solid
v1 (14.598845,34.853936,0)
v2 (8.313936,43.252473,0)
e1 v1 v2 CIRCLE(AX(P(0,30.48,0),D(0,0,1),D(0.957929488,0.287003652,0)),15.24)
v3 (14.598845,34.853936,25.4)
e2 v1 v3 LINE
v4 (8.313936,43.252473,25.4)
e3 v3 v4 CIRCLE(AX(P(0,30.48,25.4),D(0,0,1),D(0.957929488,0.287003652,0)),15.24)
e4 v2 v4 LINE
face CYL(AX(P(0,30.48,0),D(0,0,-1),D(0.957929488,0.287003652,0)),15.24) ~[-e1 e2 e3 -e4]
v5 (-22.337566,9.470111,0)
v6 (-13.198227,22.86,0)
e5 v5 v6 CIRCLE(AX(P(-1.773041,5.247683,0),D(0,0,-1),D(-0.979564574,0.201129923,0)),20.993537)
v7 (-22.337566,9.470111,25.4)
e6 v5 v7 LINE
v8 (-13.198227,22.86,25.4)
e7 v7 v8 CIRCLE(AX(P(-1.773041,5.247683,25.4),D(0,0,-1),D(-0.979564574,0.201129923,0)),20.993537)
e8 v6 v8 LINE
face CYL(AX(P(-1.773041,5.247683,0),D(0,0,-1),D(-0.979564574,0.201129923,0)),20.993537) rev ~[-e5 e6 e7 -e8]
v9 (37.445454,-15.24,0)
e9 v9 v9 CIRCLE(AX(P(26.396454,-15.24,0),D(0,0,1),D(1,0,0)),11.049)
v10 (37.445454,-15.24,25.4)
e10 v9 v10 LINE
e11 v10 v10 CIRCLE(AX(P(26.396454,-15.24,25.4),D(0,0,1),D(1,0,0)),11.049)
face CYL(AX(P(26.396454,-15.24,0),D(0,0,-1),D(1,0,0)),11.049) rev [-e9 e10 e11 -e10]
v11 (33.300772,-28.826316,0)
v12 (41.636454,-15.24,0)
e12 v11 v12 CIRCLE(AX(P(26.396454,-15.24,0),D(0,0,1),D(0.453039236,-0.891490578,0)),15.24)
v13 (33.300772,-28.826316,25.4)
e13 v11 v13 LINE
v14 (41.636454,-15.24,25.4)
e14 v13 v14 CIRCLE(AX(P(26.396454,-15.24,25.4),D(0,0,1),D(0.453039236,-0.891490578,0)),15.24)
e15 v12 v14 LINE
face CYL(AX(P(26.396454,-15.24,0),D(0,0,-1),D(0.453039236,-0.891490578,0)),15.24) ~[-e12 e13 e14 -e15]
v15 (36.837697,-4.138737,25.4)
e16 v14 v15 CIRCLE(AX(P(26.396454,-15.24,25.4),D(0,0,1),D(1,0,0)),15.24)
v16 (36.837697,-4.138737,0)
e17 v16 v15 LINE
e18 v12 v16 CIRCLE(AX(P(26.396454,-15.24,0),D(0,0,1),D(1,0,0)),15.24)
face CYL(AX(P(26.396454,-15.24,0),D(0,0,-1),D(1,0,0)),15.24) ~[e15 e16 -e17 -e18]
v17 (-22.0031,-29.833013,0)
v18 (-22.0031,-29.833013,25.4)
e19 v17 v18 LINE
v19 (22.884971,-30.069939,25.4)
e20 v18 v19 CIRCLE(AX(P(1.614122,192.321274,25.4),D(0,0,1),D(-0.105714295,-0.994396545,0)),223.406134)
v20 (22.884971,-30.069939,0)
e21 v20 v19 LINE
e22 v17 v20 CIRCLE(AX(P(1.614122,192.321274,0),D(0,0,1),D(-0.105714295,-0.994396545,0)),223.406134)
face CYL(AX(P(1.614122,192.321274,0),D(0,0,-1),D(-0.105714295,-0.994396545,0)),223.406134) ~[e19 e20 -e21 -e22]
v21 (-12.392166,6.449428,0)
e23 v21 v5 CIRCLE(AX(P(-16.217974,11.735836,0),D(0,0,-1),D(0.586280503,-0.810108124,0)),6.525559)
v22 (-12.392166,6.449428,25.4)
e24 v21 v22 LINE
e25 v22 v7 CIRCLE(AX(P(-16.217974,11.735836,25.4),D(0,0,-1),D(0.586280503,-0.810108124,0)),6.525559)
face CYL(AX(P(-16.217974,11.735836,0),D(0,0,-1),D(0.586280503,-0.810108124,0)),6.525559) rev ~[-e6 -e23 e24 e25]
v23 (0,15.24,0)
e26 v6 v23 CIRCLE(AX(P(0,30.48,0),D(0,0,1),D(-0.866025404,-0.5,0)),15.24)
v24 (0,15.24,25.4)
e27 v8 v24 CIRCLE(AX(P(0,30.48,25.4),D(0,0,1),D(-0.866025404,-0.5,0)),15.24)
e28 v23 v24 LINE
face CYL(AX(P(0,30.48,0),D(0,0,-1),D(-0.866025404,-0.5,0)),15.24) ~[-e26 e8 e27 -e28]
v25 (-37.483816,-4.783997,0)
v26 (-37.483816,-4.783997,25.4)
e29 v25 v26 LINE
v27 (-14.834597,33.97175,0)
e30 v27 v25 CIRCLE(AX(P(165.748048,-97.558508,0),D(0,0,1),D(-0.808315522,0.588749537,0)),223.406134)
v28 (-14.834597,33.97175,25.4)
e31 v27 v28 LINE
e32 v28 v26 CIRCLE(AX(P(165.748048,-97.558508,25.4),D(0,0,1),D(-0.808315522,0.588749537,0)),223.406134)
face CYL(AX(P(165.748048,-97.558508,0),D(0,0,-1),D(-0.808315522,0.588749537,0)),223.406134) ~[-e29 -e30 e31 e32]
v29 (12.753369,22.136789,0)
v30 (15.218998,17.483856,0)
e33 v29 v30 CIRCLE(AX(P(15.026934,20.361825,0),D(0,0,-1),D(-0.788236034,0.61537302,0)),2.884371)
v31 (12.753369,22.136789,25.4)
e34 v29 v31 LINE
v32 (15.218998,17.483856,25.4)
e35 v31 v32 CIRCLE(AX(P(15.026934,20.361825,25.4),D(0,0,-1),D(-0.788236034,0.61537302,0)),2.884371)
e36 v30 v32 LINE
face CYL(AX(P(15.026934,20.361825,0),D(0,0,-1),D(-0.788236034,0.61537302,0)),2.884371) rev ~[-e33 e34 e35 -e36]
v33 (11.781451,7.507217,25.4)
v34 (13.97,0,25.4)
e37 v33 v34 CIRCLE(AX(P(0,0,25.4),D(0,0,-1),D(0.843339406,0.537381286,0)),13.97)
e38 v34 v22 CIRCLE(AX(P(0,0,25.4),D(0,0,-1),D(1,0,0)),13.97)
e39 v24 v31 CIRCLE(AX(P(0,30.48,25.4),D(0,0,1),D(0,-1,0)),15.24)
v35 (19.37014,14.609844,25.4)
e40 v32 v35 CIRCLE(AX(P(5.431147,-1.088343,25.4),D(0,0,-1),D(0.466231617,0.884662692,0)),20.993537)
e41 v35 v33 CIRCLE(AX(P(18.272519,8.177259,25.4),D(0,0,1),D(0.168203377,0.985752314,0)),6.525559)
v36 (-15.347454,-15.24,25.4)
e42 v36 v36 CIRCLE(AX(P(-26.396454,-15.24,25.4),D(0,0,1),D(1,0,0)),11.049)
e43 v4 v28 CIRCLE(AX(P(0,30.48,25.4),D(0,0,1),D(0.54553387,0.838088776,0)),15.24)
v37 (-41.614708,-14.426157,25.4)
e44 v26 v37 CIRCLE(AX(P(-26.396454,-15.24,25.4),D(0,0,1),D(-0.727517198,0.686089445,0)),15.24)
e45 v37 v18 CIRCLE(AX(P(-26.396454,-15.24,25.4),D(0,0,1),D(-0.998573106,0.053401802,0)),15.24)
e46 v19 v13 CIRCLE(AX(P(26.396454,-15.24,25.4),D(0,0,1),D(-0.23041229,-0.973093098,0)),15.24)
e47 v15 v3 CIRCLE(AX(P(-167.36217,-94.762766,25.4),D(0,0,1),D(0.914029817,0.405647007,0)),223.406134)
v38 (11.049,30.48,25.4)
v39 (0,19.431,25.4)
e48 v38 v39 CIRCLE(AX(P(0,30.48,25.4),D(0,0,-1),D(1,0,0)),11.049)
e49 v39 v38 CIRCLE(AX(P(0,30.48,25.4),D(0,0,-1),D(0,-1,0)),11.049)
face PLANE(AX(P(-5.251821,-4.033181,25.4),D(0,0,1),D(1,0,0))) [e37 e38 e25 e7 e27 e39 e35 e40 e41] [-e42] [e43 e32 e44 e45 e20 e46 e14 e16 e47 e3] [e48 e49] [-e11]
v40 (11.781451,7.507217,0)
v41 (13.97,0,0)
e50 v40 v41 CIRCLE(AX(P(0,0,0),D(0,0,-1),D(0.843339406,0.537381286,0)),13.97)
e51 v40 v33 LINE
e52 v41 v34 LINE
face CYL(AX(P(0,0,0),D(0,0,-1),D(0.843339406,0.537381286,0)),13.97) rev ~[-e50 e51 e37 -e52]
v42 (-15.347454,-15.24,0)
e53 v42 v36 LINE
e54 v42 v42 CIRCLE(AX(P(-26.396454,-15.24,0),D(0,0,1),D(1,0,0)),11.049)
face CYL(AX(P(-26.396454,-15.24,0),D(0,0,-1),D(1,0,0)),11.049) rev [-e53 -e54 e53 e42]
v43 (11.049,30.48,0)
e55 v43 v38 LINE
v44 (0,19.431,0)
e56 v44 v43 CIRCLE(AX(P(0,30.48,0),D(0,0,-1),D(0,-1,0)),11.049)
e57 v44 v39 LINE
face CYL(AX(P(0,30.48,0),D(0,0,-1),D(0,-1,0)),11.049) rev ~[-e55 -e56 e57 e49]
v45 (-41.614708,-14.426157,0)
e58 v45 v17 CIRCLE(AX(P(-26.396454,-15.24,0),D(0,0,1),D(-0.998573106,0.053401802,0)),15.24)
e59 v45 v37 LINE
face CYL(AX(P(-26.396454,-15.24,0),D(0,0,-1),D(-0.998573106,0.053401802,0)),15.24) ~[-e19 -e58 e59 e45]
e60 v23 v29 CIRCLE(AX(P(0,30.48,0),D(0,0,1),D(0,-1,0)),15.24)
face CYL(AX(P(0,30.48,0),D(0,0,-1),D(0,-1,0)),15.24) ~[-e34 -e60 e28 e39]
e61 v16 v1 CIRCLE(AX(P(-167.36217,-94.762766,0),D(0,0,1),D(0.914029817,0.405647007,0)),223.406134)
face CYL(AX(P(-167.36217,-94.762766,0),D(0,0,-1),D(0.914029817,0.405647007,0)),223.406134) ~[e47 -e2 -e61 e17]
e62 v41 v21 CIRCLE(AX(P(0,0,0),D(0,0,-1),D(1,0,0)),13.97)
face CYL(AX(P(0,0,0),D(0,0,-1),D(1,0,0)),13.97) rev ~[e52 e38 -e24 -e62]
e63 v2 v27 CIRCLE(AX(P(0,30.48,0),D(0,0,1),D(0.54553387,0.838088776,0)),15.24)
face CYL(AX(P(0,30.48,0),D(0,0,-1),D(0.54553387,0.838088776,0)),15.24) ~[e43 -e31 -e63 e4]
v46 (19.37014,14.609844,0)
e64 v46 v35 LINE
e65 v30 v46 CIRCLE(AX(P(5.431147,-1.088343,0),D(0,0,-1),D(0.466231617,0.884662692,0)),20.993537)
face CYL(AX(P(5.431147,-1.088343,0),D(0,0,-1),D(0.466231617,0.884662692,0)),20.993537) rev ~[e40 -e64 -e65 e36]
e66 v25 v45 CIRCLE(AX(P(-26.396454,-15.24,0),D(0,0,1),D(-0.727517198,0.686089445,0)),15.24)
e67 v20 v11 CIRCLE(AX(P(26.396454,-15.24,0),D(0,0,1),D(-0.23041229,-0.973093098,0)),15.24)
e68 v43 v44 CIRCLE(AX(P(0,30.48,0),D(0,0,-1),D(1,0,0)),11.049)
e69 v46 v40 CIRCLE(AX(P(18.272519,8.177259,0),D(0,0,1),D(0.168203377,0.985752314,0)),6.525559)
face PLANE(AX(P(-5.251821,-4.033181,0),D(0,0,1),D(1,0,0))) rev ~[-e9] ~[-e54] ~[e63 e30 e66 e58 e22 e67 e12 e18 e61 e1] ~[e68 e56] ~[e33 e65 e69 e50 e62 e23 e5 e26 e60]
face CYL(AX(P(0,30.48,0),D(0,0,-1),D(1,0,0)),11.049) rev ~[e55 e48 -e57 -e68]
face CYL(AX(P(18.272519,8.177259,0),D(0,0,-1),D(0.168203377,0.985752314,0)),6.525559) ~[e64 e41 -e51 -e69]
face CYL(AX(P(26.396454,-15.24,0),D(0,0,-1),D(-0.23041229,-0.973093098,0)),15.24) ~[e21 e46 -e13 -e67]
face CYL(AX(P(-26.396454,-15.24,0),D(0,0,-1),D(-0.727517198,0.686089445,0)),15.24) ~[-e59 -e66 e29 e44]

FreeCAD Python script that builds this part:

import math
import FreeCAD as App
import Part
import Sketcher
Q = App.Units.Quantity

doc = App.newDocument("Part")
body = doc.addObject("PartDesign::Body", "Body")

sketch1 = body.newObject("Sketcher::SketchObject", "Sketch")
sketch1.AttachmentSupport = (doc.getObject("XY_Plane"), [""])
sketch1.MapMode = "FlatFace"
sketch1.addGeometry([
    Part.ArcOfCircle(Part.Circle(App.Vector(165.7, -97.6, 0), App.Vector(0, 0, 1), 223.4), math.radians(143.93), math.radians(155.46)),
    Part.ArcOfCircle(Part.Circle(App.Vector(-26.4, -15.2, 0), App.Vector(0, 0, 1), 15.2), math.radians(137), math.radians(177)),
    Part.ArcOfCircle(Part.Circle(App.Vector(-26.4, -15.2, 0), App.Vector(0, 0, 1), 15.2), math.radians(177), math.radians(287)),
    Part.ArcOfCircle(Part.Circle(App.Vector(1.6, 192.3, 0), App.Vector(0, 0, 1), 223.4), math.radians(-96.07), math.radians(-84.54)),
    Part.ArcOfCircle(Part.Circle(App.Vector(26.4, -15.2, 0), App.Vector(0, 0, 1), 15.2), math.radians(-103), math.radians(-63)),
    Part.ArcOfCircle(Part.Circle(App.Vector(26.4, -15.2, 0), App.Vector(0, 0, 1), 15.2), math.radians(-63), math.radians(0)),
    Part.ArcOfCircle(Part.Circle(App.Vector(26.4, -15.2, 0), App.Vector(0, 0, 1), 15.2), math.radians(0), math.radians(47)),
    Part.ArcOfCircle(Part.Circle(App.Vector(-167.4, -94.8, 0), App.Vector(0, 0, 1), 223.4), math.radians(23.93), math.radians(35.46)),
    Part.ArcOfCircle(Part.Circle(App.Vector(0, 30.5, 0), App.Vector(0, 0, 1), 15.2), math.radians(17), math.radians(57)),
    Part.ArcOfCircle(Part.Circle(App.Vector(0, 30.5, 0), App.Vector(0, 0, 1), 15.2), math.radians(57), math.radians(167)),
    Part.Circle(App.Vector(-26.4, -15.2, 0), App.Vector(0, 0, 1), 11),
    Part.ArcOfCircle(Part.Circle(App.Vector(0, 0, 0), App.Vector(0, 0, 1), 14), math.radians(0), math.radians(33)),
    Part.ArcOfCircle(Part.Circle(App.Vector(0, 0, 0), App.Vector(0, 0, 1), 14), math.radians(153), math.radians(360)),
    Part.ArcOfCircle(Part.Circle(App.Vector(-16.2, 11.7, 0), App.Vector(0, 0, 1), 6.5), math.radians(-160), math.radians(-54)),
    Part.ArcOfCircle(Part.Circle(App.Vector(-1.8, 5.2, 0), App.Vector(0, 0, 1), 21), math.radians(123), math.radians(168)),
    Part.ArcOfCircle(Part.Circle(App.Vector(0, 30.5, 0), App.Vector(0, 0, 1), 15.2), math.radians(-150), math.radians(-90)),
    Part.ArcOfCircle(Part.Circle(App.Vector(0, 30.5, 0), App.Vector(0, 0, 1), 15.2), math.radians(-90), math.radians(-33)),
    Part.ArcOfCircle(Part.Circle(App.Vector(15, 20.4, 0), App.Vector(0, 0, 1), 2.9), math.radians(-86), math.radians(142)),
    Part.ArcOfCircle(Part.Circle(App.Vector(5.4, -1.1, 0), App.Vector(0, 0, 1), 21), math.radians(48.4), math.radians(62.21)),
    Part.ArcOfCircle(Part.Circle(App.Vector(18.3, 8.2, 0), App.Vector(0, 0, 1), 6.5), math.radians(80), math.radians(186)),
    Part.Circle(App.Vector(26.4, -15.2, 0), App.Vector(0, 0, 1), 11),
    Part.ArcOfCircle(Part.Circle(App.Vector(0, 30.5, 0), App.Vector(0, 0, 1), 11), math.radians(0), math.radians(270)),
    Part.ArcOfCircle(Part.Circle(App.Vector(0, 30.5, 0), App.Vector(0, 0, 1), 11), math.radians(-90), math.radians(0)),
], False)
sketch1.addConstraint([
    Sketcher.Constraint("Coincident", 0, 2, 1, 1),
    Sketcher.Constraint("Tangent", 1, 2, 2, 1),
    Sketcher.Constraint("Coincident", 2, 2, 3, 1),
    Sketcher.Constraint("Coincident", 3, 2, 4, 1),
    Sketcher.Constraint("Tangent", 4, 2, 5, 1),
    Sketcher.Constraint("Tangent", 5, 2, 6, 1),
    Sketcher.Constraint("Coincident", 6, 2, 7, 1),
    Sketcher.Constraint("Coincident", 7, 2, 8, 1),
    Sketcher.Constraint("Tangent", 8, 2, 9, 1),
    Sketcher.Constraint("Coincident", 9, 2, 0, 1),
    Sketcher.Constraint("Tangent", 11, 1, 12, 2),
    Sketcher.Constraint("Coincident", 12, 1, 13, 2),
    Sketcher.Constraint("Coincident", 13, 1, 14, 2),
    Sketcher.Constraint("Coincident", 14, 1, 15, 1),
    Sketcher.Constraint("Tangent", 15, 2, 16, 1),
    Sketcher.Constraint("Coincident", 16, 2, 17, 2),
    Sketcher.Constraint("Coincident", 17, 1, 18, 2),
    Sketcher.Constraint("Coincident", 18, 1, 19, 1),
    Sketcher.Constraint("Coincident", 19, 2, 11, 2),
    Sketcher.Constraint("Tangent", 21, 1, 22, 2),
    Sketcher.Constraint("Coincident", 22, 1, 21, 2),
    Sketcher.Constraint("Coincident", 11, 3, -1, 1),
    Sketcher.Constraint("Coincident", 6, 3, 4, 3),
    Sketcher.Constraint("Coincident", 10, 3, 1, 3),
    Sketcher.Constraint("Coincident", 15, 3, 8, 3),
    Sketcher.Constraint("Coincident", 20, 3, 4, 3),
    Sketcher.Constraint("Coincident", 21, 3, 8, 3),
    Sketcher.Constraint("Equal", 1, 2),
    Sketcher.Constraint("Equal", 0, 3),
    Sketcher.Constraint("Equal", 2, 4),
    Sketcher.Constraint("Equal", 3, 7),
    Sketcher.Constraint("Equal", 6, 8),
    Sketcher.Constraint("Equal", 8, 9),
    Sketcher.Constraint("Equal", 11, 12),
    Sketcher.Constraint("Equal", 9, 15),
    Sketcher.Constraint("Equal", 15, 16),
    Sketcher.Constraint("Equal", 14, 18),
    Sketcher.Constraint("Equal", 13, 19),
    Sketcher.Constraint("Equal", 10, 20),
    Sketcher.Constraint("Equal", 20, 21),
    Sketcher.Constraint("Symmetric", 1, 3, 4, 3, -2),
    Sketcher.Constraint("PointOnObject", 8, 3, -2),
    Sketcher.Constraint("PointOnObject", 11, 1, -1),
    Sketcher.Constraint("PointOnObject", 15, 2, -2),
    Sketcher.Constraint("PointOnObject", 22, 1, -2),
    Sketcher.Constraint("Horizontal", 20, 3, 5, 2),
    Sketcher.Constraint("Horizontal", 22, 3, 21, 1),
    Sketcher.Constraint("Radius", 1, Q("0.6 in")),
    Sketcher.Constraint("Diameter", 10, Q("0.87 in")),
    Sketcher.Constraint("Radius", 11, Q("0.55 in")),
    Sketcher.Constraint("DistanceY", 1, 3, -1, 1, Q("0.6 in")),
    Sketcher.Constraint("DistanceY", -1, 1, 8, 3, Q("1.2 in")),
    Sketcher.Constraint("DistanceY", -1, 1, 14, 1, Q("0.9 in")),
    Sketcher.Constraint("Radius", 13, Q("6.525559 mm")),
    Sketcher.Constraint("Radius", 17, Q("2.884371 mm")),
    Sketcher.Constraint("Radius", 0, Q("223.406134 mm")),
    Sketcher.Constraint("Radius", 14, Q("20.993537 mm")),
    Sketcher.Constraint("DistanceX", 2, 2, -1, 1, Q("22.0031 mm")),
    Sketcher.Constraint("DistanceX", 3, 2, 4, 2, Q("10.415801 mm")),
    Sketcher.Constraint("DistanceX", 13, 1, 12, 1, Q("9.9454 mm")),
    Sketcher.Constraint("DistanceX", -1, 1, 0, 3, Q("165.748048 mm")),
    Sketcher.Constraint("DistanceX", -1, 1, 3, 3, Q("1.614122 mm")),
    Sketcher.Constraint("DistanceX", 7, 3, -1, 1, Q("167.36217 mm")),
    Sketcher.Constraint("DistanceX", 14, 3, -1, 1, Q("1.773041 mm")),
    Sketcher.Constraint("DistanceX", -1, 1, 19, 3, Q("18.272519 mm")),
    Sketcher.Constraint("DistanceY", -1, 1, 19, 3, Q("8.177259 mm")),
    Sketcher.Constraint("DistanceX", 1, 2, -1, 1, Q("41.614708 mm")),
    Sketcher.Constraint("DistanceY", 3, 2, -1, 1, Q("30.069939 mm")),
    Sketcher.Constraint("DistanceY", -1, 1, 9, 2, Q("33.97175 mm")),
    Sketcher.Constraint("DistanceY", -1, 1, 12, 1, Q("6.449428 mm")),
    Sketcher.Constraint("DistanceX", -1, 1, 16, 2, Q("12.753369 mm")),
    Sketcher.Constraint("DistanceX", -1, 1, 18, 1, Q("19.37014 mm")),
    Sketcher.Constraint("DistanceY", 14, 3, 17, 3, Q("15.114142 mm")),
    Sketcher.Constraint("DistanceY", 18, 3, 17, 3, Q("21.450168 mm")),
    Sketcher.Constraint("DistanceX", 7, 2, 17, 3, Q("0.428089 mm")),
    Sketcher.Constraint("DistanceX", 8, 2, 7, 2, Q("6.284909 mm")),
])
pad1 = body.newObject("PartDesign::Pad", "Pad")
pad1.Profile = sketch1
pad1.Length = Q("1 in")

sketch2 = body.newObject("Sketcher::SketchObject", "Sketch001")
sketch2.AttachmentSupport = (doc.getObject("XY_Plane"), [""])
sketch2.MapMode = "FlatFace"
sketch2.addGeometry([
    Part.ArcOfCircle(Part.Circle(App.Vector(165.7, -97.6, 0), App.Vector(0, 0, 1), 223.4), math.radians(143.93), math.radians(155.46)),
    Part.ArcOfCircle(Part.Circle(App.Vector(-26.4, -15.2, 0), App.Vector(0, 0, 1), 15.2), math.radians(137), math.radians(177)),
    Part.ArcOfCircle(Part.Circle(App.Vector(-26.4, -15.2, 0), App.Vector(0, 0, 1), 15.2), math.radians(177), math.radians(287)),
    Part.ArcOfCircle(Part.Circle(App.Vector(1.6, 192.3, 0), App.Vector(0, 0, 1), 223.4), math.radians(-96.07), math.radians(-84.54)),
    Part.ArcOfCircle(Part.Circle(App.Vector(26.4, -15.2, 0), App.Vector(0, 0, 1), 15.2), math.radians(-103), math.radians(-63)),
    Part.ArcOfCircle(Part.Circle(App.Vector(26.4, -15.2, 0), App.Vector(0, 0, 1), 15.2), math.radians(-63), math.radians(0)),
    Part.ArcOfCircle(Part.Circle(App.Vector(26.4, -15.2, 0), App.Vector(0, 0, 1), 15.2), math.radians(0), math.radians(47)),
    Part.ArcOfCircle(Part.Circle(App.Vector(-167.4, -94.8, 0), App.Vector(0, 0, 1), 223.4), math.radians(23.93), math.radians(35.46)),
    Part.ArcOfCircle(Part.Circle(App.Vector(0, 30.5, 0), App.Vector(0, 0, 1), 15.2), math.radians(17), math.radians(57)),
    Part.ArcOfCircle(Part.Circle(App.Vector(0, 30.5, 0), App.Vector(0, 0, 1), 15.2), math.radians(57), math.radians(167)),
    Part.Circle(App.Vector(-26.4, -15.2, 0), App.Vector(0, 0, 1), 11),
    Part.ArcOfCircle(Part.Circle(App.Vector(0, 0, 0), App.Vector(0, 0, 1), 14), math.radians(0), math.radians(33)),
    Part.ArcOfCircle(Part.Circle(App.Vector(0, 0, 0), App.Vector(0, 0, 1), 14), math.radians(153), math.radians(360)),
    Part.ArcOfCircle(Part.Circle(App.Vector(-16.2, 11.7, 0), App.Vector(0, 0, 1), 6.5), math.radians(-160), math.radians(-54)),
    Part.ArcOfCircle(Part.Circle(App.Vector(-1.8, 5.2, 0), App.Vector(0, 0, 1), 21), math.radians(123), math.radians(168)),
    Part.ArcOfCircle(Part.Circle(App.Vector(0, 30.5, 0), App.Vector(0, 0, 1), 15.2), math.radians(-150), math.radians(-90)),
    Part.ArcOfCircle(Part.Circle(App.Vector(0, 30.5, 0), App.Vector(0, 0, 1), 15.2), math.radians(-90), math.radians(-33)),
    Part.ArcOfCircle(Part.Circle(App.Vector(15, 20.4, 0), App.Vector(0, 0, 1), 2.9), math.radians(-86), math.radians(142)),
    Part.ArcOfCircle(Part.Circle(App.Vector(5.4, -1.1, 0), App.Vector(0, 0, 1), 21), math.radians(48.4), math.radians(62.21)),
    Part.ArcOfCircle(Part.Circle(App.Vector(18.3, 8.2, 0), App.Vector(0, 0, 1), 6.5), math.radians(80), math.radians(186)),
    Part.Circle(App.Vector(26.4, -15.2, 0), App.Vector(0, 0, 1), 11),
    Part.ArcOfCircle(Part.Circle(App.Vector(0, 30.5, 0), App.Vector(0, 0, 1), 11), math.radians(0), math.radians(270)),
    Part.ArcOfCircle(Part.Circle(App.Vector(0, 30.5, 0), App.Vector(0, 0, 1), 11), math.radians(-90), math.radians(0)),
], False)
sketch2.addConstraint([
    Sketcher.Constraint("Coincident", 0, 2, 1, 1),
    Sketcher.Constraint("Tangent", 1, 2, 2, 1),
    Sketcher.Constraint("Coincident", 2, 2, 3, 1),
    Sketcher.Constraint("Coincident", 3, 2, 4, 1),
    Sketcher.Constraint("Tangent", 4, 2, 5, 1),
    Sketcher.Constraint("Tangent", 5, 2, 6, 1),
    Sketcher.Constraint("Coincident", 6, 2, 7, 1),
    Sketcher.Constraint("Coincident", 7, 2, 8, 1),
    Sketcher.Constraint("Tangent", 8, 2, 9, 1),
    Sketcher.Constraint("Coincident", 9, 2, 0, 1),
    Sketcher.Constraint("Tangent", 11, 1, 12, 2),
    Sketcher.Constraint("Coincident", 12, 1, 13, 2),
    Sketcher.Constraint("Coincident", 13, 1, 14, 2),
    Sketcher.Constraint("Coincident", 14, 1, 15, 1),
    Sketcher.Constraint("Tangent", 15, 2, 16, 1),
    Sketcher.Constraint("Coincident", 16, 2, 17, 2),
    Sketcher.Constraint("Coincident", 17, 1, 18, 2),
    Sketcher.Constraint("Coincident", 18, 1, 19, 1),
    Sketcher.Constraint("Coincident", 19, 2, 11, 2),
    Sketcher.Constraint("Tangent", 21, 1, 22, 2),
    Sketcher.Constraint("Coincident", 22, 1, 21, 2),
    Sketcher.Constraint("Coincident", 11, 3, -1, 1),
    Sketcher.Constraint("Coincident", 6, 3, 4, 3),
    Sketcher.Constraint("Coincident", 10, 3, 1, 3),
    Sketcher.Constraint("Coincident", 15, 3, 8, 3),
    Sketcher.Constraint("Coincident", 20, 3, 4, 3),
    Sketcher.Constraint("Coincident", 21, 3, 8, 3),
    Sketcher.Constraint("Equal", 1, 2),
    Sketcher.Constraint("Equal", 0, 3),
    Sketcher.Constraint("Equal", 2, 4),
    Sketcher.Constraint("Equal", 3, 7),
    Sketcher.Constraint("Equal", 6, 8),
    Sketcher.Constraint("Equal", 8, 9),
    Sketcher.Constraint("Equal", 11, 12),
    Sketcher.Constraint("Equal", 9, 15),
    Sketcher.Constraint("Equal", 15, 16),
    Sketcher.Constraint("Equal", 14, 18),
    Sketcher.Constraint("Equal", 13, 19),
    Sketcher.Constraint("Equal", 10, 20),
    Sketcher.Constraint("Equal", 20, 21),
    Sketcher.Constraint("Symmetric", 1, 3, 4, 3, -2),
    Sketcher.Constraint("PointOnObject", 8, 3, -2),
    Sketcher.Constraint("PointOnObject", 11, 1, -1),
    Sketcher.Constraint("PointOnObject", 15, 2, -2),
    Sketcher.Constraint("PointOnObject", 22, 1, -2),
    Sketcher.Constraint("Horizontal", 20, 3, 5, 2),
    Sketcher.Constraint("Horizontal", 22, 3, 21, 1),
    Sketcher.Constraint("Radius", 1, Q("0.6 in")),
    Sketcher.Constraint("Diameter", 10, Q("0.87 in")),
    Sketcher.Constraint("Radius", 11, Q("0.55 in")),
    Sketcher.Constraint("DistanceY", 1, 3, -1, 1, Q("0.6 in")),
    Sketcher.Constraint("DistanceY", -1, 1, 8, 3, Q("1.2 in")),
    Sketcher.Constraint("DistanceY", -1, 1, 14, 1, Q("0.9 in")),
    Sketcher.Constraint("Radius", 13, Q("6.525559 mm")),
    Sketcher.Constraint("Radius", 17, Q("2.884371 mm")),
    Sketcher.Constraint("Radius", 0, Q("223.406134 mm")),
    Sketcher.Constraint("Radius", 14, Q("20.993537 mm")),
    Sketcher.Constraint("DistanceX", 2, 2, -1, 1, Q("22.0031 mm")),
    Sketcher.Constraint("DistanceX", 3, 2, 4, 2, Q("10.415801 mm")),
    Sketcher.Constraint("DistanceX", 13, 1, 12, 1, Q("9.9454 mm")),
    Sketcher.Constraint("DistanceX", -1, 1, 0, 3, Q("165.748048 mm")),
    Sketcher.Constraint("DistanceX", -1, 1, 3, 3, Q("1.614122 mm")),
    Sketcher.Constraint("DistanceX", 7, 3, -1, 1, Q("167.36217 mm")),
    Sketcher.Constraint("DistanceX", 14, 3, -1, 1, Q("1.773041 mm")),
    Sketcher.Constraint("DistanceX", -1, 1, 19, 3, Q("18.272519 mm")),
    Sketcher.Constraint("DistanceY", -1, 1, 19, 3, Q("8.177259 mm")),
    Sketcher.Constraint("DistanceX", 1, 2, -1, 1, Q("41.614708 mm")),
    Sketcher.Constraint("DistanceY", 3, 2, -1, 1, Q("30.069939 mm")),
    Sketcher.Constraint("DistanceY", -1, 1, 9, 2, Q("33.97175 mm")),
    Sketcher.Constraint("DistanceY", -1, 1, 12, 1, Q("6.449428 mm")),
    Sketcher.Constraint("DistanceX", -1, 1, 16, 2, Q("12.753369 mm")),
    Sketcher.Constraint("DistanceX", -1, 1, 18, 1, Q("19.37014 mm")),
    Sketcher.Constraint("DistanceY", 14, 3, 17, 3, Q("15.114142 mm")),
    Sketcher.Constraint("DistanceY", 18, 3, 17, 3, Q("21.450168 mm")),
    Sketcher.Constraint("DistanceX", 7, 2, 17, 3, Q("0.428089 mm")),
    Sketcher.Constraint("DistanceX", 8, 2, 7, 2, Q("6.284909 mm")),
])
pad2 = body.newObject("PartDesign::Pad", "Pad001")
pad2.Profile = sketch2
pad2.Length = Q("1 in")

doc.recompute()
